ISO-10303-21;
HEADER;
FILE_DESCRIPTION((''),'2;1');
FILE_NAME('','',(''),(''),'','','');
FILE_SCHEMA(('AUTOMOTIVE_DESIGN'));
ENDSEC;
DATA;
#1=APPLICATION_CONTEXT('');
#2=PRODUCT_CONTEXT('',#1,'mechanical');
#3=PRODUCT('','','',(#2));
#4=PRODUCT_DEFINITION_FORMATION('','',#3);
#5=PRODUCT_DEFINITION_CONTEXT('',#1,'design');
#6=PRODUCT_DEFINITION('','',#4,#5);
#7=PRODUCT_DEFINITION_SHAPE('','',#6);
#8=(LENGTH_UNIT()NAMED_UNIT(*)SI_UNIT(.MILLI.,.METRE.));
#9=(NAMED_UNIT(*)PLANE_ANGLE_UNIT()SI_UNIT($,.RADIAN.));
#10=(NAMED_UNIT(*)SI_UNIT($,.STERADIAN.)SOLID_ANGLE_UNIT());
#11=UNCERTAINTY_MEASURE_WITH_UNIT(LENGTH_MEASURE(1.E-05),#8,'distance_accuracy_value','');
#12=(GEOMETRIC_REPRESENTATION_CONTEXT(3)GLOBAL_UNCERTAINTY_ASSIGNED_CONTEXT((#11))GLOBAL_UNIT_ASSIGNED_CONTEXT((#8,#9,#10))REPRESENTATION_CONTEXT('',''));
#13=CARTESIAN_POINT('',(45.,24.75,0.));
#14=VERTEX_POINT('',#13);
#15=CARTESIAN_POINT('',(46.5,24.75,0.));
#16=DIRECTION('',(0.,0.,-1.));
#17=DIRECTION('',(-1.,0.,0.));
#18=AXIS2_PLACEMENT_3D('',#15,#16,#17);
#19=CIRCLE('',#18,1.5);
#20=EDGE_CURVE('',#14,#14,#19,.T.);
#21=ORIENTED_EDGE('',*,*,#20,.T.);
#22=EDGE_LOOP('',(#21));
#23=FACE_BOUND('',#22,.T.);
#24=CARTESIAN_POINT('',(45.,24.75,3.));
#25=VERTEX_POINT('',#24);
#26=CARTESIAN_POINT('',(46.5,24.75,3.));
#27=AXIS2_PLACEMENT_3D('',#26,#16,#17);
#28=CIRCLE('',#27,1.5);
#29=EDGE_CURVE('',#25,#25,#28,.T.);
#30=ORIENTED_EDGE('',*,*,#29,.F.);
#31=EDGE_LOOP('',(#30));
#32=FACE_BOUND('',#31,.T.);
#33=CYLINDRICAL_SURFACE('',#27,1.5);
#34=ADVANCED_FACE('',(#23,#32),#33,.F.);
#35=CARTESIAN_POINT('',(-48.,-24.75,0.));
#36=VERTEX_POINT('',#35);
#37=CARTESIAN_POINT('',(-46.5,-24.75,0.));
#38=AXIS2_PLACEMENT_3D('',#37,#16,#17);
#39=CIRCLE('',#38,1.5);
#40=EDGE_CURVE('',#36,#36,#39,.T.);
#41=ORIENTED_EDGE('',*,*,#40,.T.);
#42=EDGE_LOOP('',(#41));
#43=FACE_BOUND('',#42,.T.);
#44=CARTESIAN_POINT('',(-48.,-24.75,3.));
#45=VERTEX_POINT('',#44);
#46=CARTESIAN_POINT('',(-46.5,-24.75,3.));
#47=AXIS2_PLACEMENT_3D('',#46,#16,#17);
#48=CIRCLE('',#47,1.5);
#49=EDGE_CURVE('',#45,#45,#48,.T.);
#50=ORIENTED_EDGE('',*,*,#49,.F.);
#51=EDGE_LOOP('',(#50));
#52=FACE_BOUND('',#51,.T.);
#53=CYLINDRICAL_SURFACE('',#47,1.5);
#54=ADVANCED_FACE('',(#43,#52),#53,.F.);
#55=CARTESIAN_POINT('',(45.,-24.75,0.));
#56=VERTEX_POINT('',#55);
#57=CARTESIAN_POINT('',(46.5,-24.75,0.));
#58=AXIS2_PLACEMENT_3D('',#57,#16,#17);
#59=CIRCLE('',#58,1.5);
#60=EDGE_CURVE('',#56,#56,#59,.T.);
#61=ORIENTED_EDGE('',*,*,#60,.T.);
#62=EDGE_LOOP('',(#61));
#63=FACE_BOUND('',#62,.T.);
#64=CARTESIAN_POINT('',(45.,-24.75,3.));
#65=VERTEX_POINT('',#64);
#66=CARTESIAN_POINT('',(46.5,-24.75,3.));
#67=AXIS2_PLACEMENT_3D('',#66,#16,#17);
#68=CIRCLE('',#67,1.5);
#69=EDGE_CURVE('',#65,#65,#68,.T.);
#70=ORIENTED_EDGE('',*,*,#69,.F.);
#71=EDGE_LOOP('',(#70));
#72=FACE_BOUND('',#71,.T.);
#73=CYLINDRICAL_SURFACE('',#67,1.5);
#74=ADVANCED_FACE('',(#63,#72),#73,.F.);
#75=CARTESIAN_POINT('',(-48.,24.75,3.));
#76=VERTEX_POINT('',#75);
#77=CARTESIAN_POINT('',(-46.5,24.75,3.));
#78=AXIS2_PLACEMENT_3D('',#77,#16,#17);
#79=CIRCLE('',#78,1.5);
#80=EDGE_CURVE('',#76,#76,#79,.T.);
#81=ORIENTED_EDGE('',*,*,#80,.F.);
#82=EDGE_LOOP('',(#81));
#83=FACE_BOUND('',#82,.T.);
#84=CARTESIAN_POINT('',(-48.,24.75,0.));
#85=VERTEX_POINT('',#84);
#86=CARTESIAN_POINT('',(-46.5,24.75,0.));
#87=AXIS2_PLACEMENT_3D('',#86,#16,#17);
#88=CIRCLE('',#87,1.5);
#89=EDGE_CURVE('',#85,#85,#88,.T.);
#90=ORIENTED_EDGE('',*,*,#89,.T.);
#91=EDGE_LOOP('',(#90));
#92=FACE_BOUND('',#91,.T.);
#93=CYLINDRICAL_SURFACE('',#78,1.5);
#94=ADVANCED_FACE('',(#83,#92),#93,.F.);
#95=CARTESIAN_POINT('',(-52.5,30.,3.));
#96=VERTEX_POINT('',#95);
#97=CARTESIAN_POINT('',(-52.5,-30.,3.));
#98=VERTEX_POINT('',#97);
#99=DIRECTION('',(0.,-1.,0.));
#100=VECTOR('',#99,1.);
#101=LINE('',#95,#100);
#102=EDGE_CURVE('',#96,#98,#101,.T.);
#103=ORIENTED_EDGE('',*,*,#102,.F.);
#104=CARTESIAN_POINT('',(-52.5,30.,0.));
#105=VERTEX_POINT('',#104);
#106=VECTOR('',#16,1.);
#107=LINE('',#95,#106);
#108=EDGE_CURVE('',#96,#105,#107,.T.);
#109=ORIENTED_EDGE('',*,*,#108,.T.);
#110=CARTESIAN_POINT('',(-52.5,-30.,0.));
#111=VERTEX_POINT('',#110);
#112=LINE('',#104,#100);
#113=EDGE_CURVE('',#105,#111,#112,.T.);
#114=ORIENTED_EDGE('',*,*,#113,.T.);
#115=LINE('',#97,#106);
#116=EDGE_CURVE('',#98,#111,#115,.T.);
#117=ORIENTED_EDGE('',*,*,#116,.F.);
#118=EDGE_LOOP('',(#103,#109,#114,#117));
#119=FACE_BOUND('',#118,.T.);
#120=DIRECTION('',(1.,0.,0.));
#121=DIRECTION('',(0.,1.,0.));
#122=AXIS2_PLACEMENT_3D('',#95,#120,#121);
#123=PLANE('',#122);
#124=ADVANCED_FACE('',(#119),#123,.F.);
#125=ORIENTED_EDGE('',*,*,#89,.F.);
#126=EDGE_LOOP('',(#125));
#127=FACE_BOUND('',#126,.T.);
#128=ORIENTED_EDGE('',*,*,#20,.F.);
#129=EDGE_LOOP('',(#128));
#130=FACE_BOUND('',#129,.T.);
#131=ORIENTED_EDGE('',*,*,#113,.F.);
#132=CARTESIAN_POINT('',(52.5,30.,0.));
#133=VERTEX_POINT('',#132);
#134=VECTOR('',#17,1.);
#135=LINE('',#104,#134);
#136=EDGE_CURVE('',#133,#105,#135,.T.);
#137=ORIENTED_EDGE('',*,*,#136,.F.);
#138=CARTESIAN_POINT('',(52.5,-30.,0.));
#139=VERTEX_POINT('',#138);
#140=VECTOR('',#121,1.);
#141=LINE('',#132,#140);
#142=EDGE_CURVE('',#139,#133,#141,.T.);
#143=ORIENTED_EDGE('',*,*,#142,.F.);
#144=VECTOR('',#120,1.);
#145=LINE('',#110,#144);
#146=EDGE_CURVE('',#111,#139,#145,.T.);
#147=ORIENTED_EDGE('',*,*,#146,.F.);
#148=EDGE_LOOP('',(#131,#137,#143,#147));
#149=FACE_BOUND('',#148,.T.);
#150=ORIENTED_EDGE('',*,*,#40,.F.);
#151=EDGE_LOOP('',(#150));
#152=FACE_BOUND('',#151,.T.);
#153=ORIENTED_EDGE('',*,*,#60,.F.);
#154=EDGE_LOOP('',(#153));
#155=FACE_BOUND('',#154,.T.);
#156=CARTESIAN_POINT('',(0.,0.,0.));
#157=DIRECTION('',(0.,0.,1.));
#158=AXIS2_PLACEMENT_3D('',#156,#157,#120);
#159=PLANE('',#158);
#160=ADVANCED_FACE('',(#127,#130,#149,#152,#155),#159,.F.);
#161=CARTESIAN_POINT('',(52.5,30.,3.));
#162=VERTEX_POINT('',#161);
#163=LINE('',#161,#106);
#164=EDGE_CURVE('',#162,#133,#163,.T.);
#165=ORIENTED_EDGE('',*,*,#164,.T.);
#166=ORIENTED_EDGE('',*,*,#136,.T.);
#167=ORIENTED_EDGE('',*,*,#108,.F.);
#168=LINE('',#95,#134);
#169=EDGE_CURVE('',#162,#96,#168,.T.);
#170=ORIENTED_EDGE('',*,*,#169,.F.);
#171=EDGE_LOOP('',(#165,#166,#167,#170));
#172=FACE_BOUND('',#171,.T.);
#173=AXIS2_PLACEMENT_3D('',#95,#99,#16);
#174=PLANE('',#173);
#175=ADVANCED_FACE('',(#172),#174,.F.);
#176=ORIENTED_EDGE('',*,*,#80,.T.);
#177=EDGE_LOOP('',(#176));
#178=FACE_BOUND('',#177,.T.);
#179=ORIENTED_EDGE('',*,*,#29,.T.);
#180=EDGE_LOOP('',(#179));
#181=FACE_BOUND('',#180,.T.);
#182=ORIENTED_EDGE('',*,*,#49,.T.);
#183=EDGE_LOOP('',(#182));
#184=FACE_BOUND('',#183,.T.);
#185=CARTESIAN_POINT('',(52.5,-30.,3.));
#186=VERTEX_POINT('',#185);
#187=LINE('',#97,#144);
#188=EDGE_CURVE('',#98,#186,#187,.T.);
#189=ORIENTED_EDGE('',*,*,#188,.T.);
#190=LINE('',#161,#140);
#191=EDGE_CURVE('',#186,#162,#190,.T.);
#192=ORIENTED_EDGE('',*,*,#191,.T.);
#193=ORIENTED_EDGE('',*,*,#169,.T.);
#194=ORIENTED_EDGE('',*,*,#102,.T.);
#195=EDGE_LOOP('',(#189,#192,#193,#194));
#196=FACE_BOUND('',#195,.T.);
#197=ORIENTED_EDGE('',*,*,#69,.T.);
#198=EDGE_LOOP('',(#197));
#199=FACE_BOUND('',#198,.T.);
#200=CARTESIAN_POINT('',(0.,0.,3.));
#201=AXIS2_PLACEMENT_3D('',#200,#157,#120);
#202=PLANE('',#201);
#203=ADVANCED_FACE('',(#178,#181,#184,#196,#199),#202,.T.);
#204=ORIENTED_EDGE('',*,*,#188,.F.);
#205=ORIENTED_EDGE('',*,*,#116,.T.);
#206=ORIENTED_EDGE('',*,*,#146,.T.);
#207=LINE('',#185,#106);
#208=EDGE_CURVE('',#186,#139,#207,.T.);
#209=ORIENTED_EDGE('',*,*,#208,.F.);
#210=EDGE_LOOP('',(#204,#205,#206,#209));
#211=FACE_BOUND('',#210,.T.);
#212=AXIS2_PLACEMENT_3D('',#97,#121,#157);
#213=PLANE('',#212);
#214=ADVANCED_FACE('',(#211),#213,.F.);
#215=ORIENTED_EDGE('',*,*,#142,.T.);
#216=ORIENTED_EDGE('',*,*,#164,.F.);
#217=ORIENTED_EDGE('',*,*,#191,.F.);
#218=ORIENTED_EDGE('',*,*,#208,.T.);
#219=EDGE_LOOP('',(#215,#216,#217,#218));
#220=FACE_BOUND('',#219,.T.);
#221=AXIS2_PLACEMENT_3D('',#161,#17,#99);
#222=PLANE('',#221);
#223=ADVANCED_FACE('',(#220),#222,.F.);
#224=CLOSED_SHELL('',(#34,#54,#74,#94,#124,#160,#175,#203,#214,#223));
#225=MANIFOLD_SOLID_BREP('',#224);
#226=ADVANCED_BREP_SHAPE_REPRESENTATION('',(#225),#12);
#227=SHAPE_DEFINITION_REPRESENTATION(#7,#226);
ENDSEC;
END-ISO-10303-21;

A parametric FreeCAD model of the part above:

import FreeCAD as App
import Part
import Sketcher

V = App.Vector


def add_polygon(sketch, points):
    """Adds a closed chain of lines whose ends are joined by coincident constraints."""
    first, n = sketch.GeometryCount, len(points)
    for a, b in zip(points, points[1:] + points[:1]):
        sketch.addGeometry(Part.LineSegment(App.Vector(*a, 0), App.Vector(*b, 0)), False)
    for i in range(n):
        sketch.addConstraint(Sketcher.Constraint("Coincident", first + i, 2, first + (i + 1) % n, 1))

doc = App.newDocument("Part")
body = doc.addObject("PartDesign::Body", "Body")

sketch1 = body.newObject("Sketcher::SketchObject", "Sketch")
sketch1.AttachmentSupport = (doc.getObject("XY_Plane"), [""])
sketch1.MapMode = "FlatFace"
add_polygon(sketch1, [(-52, 30), (-52, -30), (52, -30), (52, 30)])
sketch1.addConstraint([
    Sketcher.Constraint("Vertical", 0),
    Sketcher.Constraint("Horizontal", 1),
    Sketcher.Constraint("Vertical", 2),
    Sketcher.Constraint("Horizontal", 3),
    Sketcher.Constraint("Symmetric", 0, 2, 2, 2, -1, 1),
    Sketcher.Constraint("DistanceX", 1, 1, 1, 2, 105.0),
    Sketcher.Constraint("DistanceY", 0, 2, 0, 1, 60.0),
])
pad1 = body.newObject("PartDesign::Pad", "Pad")
pad1.Profile = sketch1
pad1.Length = 3

sketch2 = body.newObject("Sketcher::SketchObject", "Sketch001")
sketch2.AttachmentSupport = (doc.getObject("XY_Plane"), [""])
sketch2.MapMode = "FlatFace"
sketch2.addGeometry([
    Part.Circle(V(46.5, 24.8, 0), V(0, 0, 1), 1.5),
    Part.Circle(V(46.5, -24.8, 0), V(0, 0, 1), 1.5),
    Part.Circle(V(-46.5, -24.8, 0), V(0, 0, 1), 1.5),
    Part.Circle(V(-46.5, 24.8, 0), V(0, 0, 1), 1.5),
], False)
sketch2.addConstraint([
    Sketcher.Constraint("Equal", 0, 1),
    Sketcher.Constraint("Equal", 1, 2),
    Sketcher.Constraint("Equal", 2, 3),
    Sketcher.Constraint("Symmetric", 0, 3, 2, 3, -1, 1),
    Sketcher.Constraint("Symmetric", 1, 3, 3, 3, -1, 1),
    Sketcher.Constraint("Symmetric", 1, 3, 2, 3, -2),
    Sketcher.Constraint("Diameter", 0, 3.0),
    Sketcher.Constraint("DistanceX", 2, 3, 1, 3, 93.0),
    Sketcher.Constraint("DistanceY", 1, 3, 0, 3, 49.5),
])
pocket1 = body.newObject("PartDesign::Pocket", "Pocket")
pocket1.Profile = sketch2
pocket1.Type = "ThroughAll"
pocket1.Reversed = True

doc.recompute()
